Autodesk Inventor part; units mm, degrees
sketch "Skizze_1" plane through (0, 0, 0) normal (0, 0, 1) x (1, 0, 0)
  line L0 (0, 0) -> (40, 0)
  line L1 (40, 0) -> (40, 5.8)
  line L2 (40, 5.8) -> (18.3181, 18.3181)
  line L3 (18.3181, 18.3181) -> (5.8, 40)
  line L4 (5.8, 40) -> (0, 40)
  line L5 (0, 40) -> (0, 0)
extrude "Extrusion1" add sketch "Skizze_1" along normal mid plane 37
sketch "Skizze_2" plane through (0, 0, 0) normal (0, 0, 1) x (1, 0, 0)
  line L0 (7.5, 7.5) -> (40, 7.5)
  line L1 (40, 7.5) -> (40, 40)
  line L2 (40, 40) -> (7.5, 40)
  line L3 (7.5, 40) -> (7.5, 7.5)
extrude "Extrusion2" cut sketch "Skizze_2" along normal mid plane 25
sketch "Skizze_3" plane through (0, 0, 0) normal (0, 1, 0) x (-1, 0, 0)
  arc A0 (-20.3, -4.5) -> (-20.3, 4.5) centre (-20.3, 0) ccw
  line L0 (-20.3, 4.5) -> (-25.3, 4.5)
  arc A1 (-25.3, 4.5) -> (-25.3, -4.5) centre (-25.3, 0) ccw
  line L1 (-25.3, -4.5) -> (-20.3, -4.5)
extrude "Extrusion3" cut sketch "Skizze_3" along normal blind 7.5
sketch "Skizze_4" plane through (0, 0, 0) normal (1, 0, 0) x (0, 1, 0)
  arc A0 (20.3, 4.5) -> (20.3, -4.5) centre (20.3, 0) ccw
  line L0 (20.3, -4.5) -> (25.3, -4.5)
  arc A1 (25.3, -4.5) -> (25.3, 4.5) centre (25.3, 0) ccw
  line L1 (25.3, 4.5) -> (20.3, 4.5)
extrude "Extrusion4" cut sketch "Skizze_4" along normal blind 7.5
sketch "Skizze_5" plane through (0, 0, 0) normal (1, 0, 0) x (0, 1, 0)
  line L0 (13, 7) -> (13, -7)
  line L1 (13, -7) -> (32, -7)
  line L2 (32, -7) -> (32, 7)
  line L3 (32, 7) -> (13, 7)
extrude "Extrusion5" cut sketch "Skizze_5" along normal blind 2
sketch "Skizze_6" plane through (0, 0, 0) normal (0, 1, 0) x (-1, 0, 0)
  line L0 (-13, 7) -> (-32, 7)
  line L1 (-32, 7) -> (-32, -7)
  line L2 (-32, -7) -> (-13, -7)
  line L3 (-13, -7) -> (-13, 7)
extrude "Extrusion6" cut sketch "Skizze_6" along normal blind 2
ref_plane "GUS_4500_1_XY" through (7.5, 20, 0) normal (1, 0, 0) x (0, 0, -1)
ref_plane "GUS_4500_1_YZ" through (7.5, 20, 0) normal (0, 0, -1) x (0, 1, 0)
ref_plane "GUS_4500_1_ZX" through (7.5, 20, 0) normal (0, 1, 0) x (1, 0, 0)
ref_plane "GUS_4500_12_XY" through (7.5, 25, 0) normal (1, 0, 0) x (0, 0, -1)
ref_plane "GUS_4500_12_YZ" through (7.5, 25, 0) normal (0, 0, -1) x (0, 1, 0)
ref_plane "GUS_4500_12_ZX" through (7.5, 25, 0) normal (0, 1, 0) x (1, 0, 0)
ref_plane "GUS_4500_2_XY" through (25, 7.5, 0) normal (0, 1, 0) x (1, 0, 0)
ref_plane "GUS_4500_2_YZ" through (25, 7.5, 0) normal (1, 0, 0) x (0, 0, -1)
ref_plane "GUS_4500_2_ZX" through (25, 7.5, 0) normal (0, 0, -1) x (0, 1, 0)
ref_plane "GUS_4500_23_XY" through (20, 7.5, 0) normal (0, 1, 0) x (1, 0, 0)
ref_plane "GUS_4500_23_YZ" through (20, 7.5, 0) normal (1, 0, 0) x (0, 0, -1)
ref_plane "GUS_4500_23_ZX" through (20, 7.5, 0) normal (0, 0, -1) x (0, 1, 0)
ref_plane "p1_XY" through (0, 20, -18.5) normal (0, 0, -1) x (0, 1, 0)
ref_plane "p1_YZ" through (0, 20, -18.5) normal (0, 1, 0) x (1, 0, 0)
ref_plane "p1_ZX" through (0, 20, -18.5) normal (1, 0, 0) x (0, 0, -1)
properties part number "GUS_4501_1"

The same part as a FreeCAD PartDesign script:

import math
import FreeCAD as App
import Part
import Sketcher
from FreeCAD import Vector
Q = App.Units.Quantity

doc = App.newDocument("Part")
body = doc.addObject("PartDesign::Body", "Body")

sketch1 = doc.addObject("Sketcher::SketchObject", "Sketch")
body.addObject(sketch1)
sketch1.AttachmentSupport = (doc.XY_Plane, [""])
sketch1.MapMode = "FlatFace"
sketch1.addGeometry(Part.LineSegment(Vector(0, 40, 0), Vector(0, 0, 0)), False)
sketch1.addGeometry(Part.LineSegment(Vector(0, 0, 0), Vector(40, 0, 0)), False)
sketch1.addGeometry(Part.LineSegment(Vector(40, 0, 0), Vector(40, 6, 0)), False)
sketch1.addGeometry(Part.LineSegment(Vector(40, 6, 0), Vector(18, 18, 0)), False)
sketch1.addGeometry(Part.LineSegment(Vector(18, 18, 0), Vector(6, 40, 0)), False)
sketch1.addGeometry(Part.LineSegment(Vector(6, 40, 0), Vector(0, 40, 0)), False)
sketch1.addConstraint(Sketcher.Constraint("Coincident", 0, 2, 1, 1))
sketch1.addConstraint(Sketcher.Constraint("Coincident", 1, 2, 2, 1))
sketch1.addConstraint(Sketcher.Constraint("Coincident", 2, 2, 3, 1))
sketch1.addConstraint(Sketcher.Constraint("Coincident", 3, 2, 4, 1))
sketch1.addConstraint(Sketcher.Constraint("Coincident", 4, 2, 5, 1))
sketch1.addConstraint(Sketcher.Constraint("Coincident", 5, 2, 0, 1))
sketch1.addConstraint(Sketcher.Constraint("Vertical", 0))
sketch1.addConstraint(Sketcher.Constraint("Horizontal", 1))
sketch1.addConstraint(Sketcher.Constraint("Vertical", 2))
sketch1.addConstraint(Sketcher.Constraint("Horizontal", 5))
sketch1.addConstraint(Sketcher.Constraint("Coincident", 0, 2, -1, 1))
sketch1.addConstraint(Sketcher.Constraint("Equal", 1, 0))
sketch1.addConstraint(Sketcher.Constraint("Equal", 5, 2))
sketch1.addConstraint(Sketcher.Constraint("Equal", 3, 4))
sketch1.addConstraint(Sketcher.Constraint("DistanceX", 1, 1, 1, 2, 40.0))
sketch1.addConstraint(Sketcher.Constraint("Angle", 3, Q("150 deg")))
sketch1.addConstraint(Sketcher.Constraint("DistanceX", 5, 2, 5, 1, 5.8))
pad1 = doc.addObject("PartDesign::Pad", "Pad")
body.addObject(pad1)
pad1.Profile = sketch1
pad1.Length = 37
pad1.Midplane = True

sketch2 = doc.addObject("Sketcher::SketchObject", "Sketch001")
body.addObject(sketch2)
sketch2.AttachmentSupport = (doc.XY_Plane, [""])
sketch2.MapMode = "FlatFace"
sketch2.addGeometry(Part.LineSegment(Vector(8, 40, 0), Vector(8, 8, 0)), False)
sketch2.addGeometry(Part.LineSegment(Vector(8, 8, 0), Vector(40, 8, 0)), False)
sketch2.addGeometry(Part.LineSegment(Vector(40, 8, 0), Vector(40, 40, 0)), False)
sketch2.addGeometry(Part.LineSegment(Vector(40, 40, 0), Vector(8, 40, 0)), False)
sketch2.addConstraint(Sketcher.Constraint("Coincident", 0, 2, 1, 1))
sketch2.addConstraint(Sketcher.Constraint("Coincident", 1, 2, 2, 1))
sketch2.addConstraint(Sketcher.Constraint("Coincident", 2, 2, 3, 1))
sketch2.addConstraint(Sketcher.Constraint("Coincident", 3, 2, 0, 1))
sketch2.addConstraint(Sketcher.Constraint("Vertical", 0))
sketch2.addConstraint(Sketcher.Constraint("Horizontal", 1))
sketch2.addConstraint(Sketcher.Constraint("Vertical", 2))
sketch2.addConstraint(Sketcher.Constraint("Horizontal", 3))
sketch2.addConstraint(Sketcher.Constraint("Equal", 3, 0))
sketch2.addConstraint(Sketcher.Constraint("DistanceX", 1, 1, 1, 2, 32.5))
sketch2.addConstraint(Sketcher.Constraint("DistanceX", -1, 1, 1, 2, 40.0))
sketch2.addConstraint(Sketcher.Constraint("DistanceY", -1, 1, 2, 2, 40.0))
pocket1 = doc.addObject("PartDesign::Pocket", "Pocket")
body.addObject(pocket1)
pocket1.Profile = sketch2
pocket1.Length = 25
pocket1.Midplane = True

sketch3 = doc.addObject("Sketcher::SketchObject", "Sketch002")
body.addObject(sketch3)
sketch3.AttachmentSupport = (doc.XZ_Plane, [""])
sketch3.MapMode = "FlatFace"
sketch3.addGeometry(Part.LineSegment(Vector(25.3, -4.5, 0), Vector(20.3, -4.5, 0)), False)
sketch3.addGeometry(Part.ArcOfCircle(Part.Circle(Vector(20.3, 0, 0), Vector(0, 0, 1), 4.5), math.radians(90), math.radians(270)), False)
sketch3.addGeometry(Part.LineSegment(Vector(20.3, 4.5, 0), Vector(25.3, 4.5, 0)), False)
sketch3.addGeometry(Part.ArcOfCircle(Part.Circle(Vector(25.3, 0, 0), Vector(0, 0, 1), 4.5), math.radians(-90), math.radians(90)), False)
sketch3.addConstraint(Sketcher.Constraint("Tangent", 0, 2, 1, 2))
sketch3.addConstraint(Sketcher.Constraint("Tangent", 1, 1, 2, 1))
sketch3.addConstraint(Sketcher.Constraint("Tangent", 2, 2, 3, 2))
sketch3.addConstraint(Sketcher.Constraint("Tangent", 3, 1, 0, 1))
sketch3.addConstraint(Sketcher.Constraint("Horizontal", 0))
sketch3.addConstraint(Sketcher.Constraint("Horizontal", 2))
sketch3.addConstraint(Sketcher.Constraint("PointOnObject", 1, 3, -1))
sketch3.addConstraint(Sketcher.Constraint("Radius", 1, 4.5))
sketch3.addConstraint(Sketcher.Constraint("DistanceX", 0, 2, 0, 1, 5.0))
sketch3.addConstraint(Sketcher.Constraint("DistanceX", -1, 1, 1, 3, 20.3))
pocket2 = doc.addObject("PartDesign::Pocket", "Pocket001")
body.addObject(pocket2)
pocket2.Profile = sketch3
pocket2.Length = 7.5

sketch4 = doc.addObject("Sketcher::SketchObject", "Sketch003")
body.addObject(sketch4)
sketch4.AttachmentSupport = (doc.YZ_Plane, [""])
sketch4.MapMode = "FlatFace"
sketch4.addGeometry(Part.LineSegment(Vector(25.3, 4.5, 0), Vector(20.3, 4.5, 0)), False)
sketch4.addGeometry(Part.ArcOfCircle(Part.Circle(Vector(20.3, 0, 0), Vector(0, 0, 1), 4.5), math.radians(90), math.radians(270)), False)
sketch4.addGeometry(Part.LineSegment(Vector(20.3, -4.5, 0), Vector(25.3, -4.5, 0)), False)
sketch4.addGeometry(Part.ArcOfCircle(Part.Circle(Vector(25.3, 0, 0), Vector(0, 0, 1), 4.5), math.radians(-90), math.radians(90)), False)
sketch4.addConstraint(Sketcher.Constraint("Tangent", 0, 2, 1, 1))
sketch4.addConstraint(Sketcher.Constraint("Tangent", 1, 2, 2, 1))
sketch4.addConstraint(Sketcher.Constraint("Tangent", 2, 2, 3, 1))
sketch4.addConstraint(Sketcher.Constraint("Tangent", 3, 2, 0, 1))
sketch4.addConstraint(Sketcher.Constraint("Horizontal", 0))
sketch4.addConstraint(Sketcher.Constraint("Horizontal", 2))
sketch4.addConstraint(Sketcher.Constraint("PointOnObject", 1, 3, -1))
sketch4.addConstraint(Sketcher.Constraint("Radius", 1, 4.5))
sketch4.addConstraint(Sketcher.Constraint("DistanceX", 0, 2, 0, 1, 5.0))
sketch4.addConstraint(Sketcher.Constraint("DistanceX", -1, 1, 1, 3, 20.3))
pocket3 = doc.addObject("PartDesign::Pocket", "Pocket002")
body.addObject(pocket3)
pocket3.Profile = sketch4
pocket3.Length = 7.5
pocket3.Reversed = True

sketch5 = doc.addObject("Sketcher::SketchObject", "Sketch004")
body.addObject(sketch5)
sketch5.AttachmentSupport = (doc.YZ_Plane, [""])
sketch5.MapMode = "FlatFace"
sketch5.addGeometry(Part.LineSegment(Vector(32, 7, 0), Vector(13, 7, 0)), False)
sketch5.addGeometry(Part.LineSegment(Vector(13, 7, 0), Vector(13, -7, 0)), False)
sketch5.addGeometry(Part.LineSegment(Vector(13, -7, 0), Vector(32, -7, 0)), False)
sketch5.addGeometry(Part.LineSegment(Vector(32, -7, 0), Vector(32, 7, 0)), False)
sketch5.addConstraint(Sketcher.Constraint("Coincident", 0, 2, 1, 1))
sketch5.addConstraint(Sketcher.Constraint("Coincident", 1, 2, 2, 1))
sketch5.addConstraint(Sketcher.Constraint("Coincident", 2, 2, 3, 1))
sketch5.addConstraint(Sketcher.Constraint("Coincident", 3, 2, 0, 1))
sketch5.addConstraint(Sketcher.Constraint("Horizontal", 0))
sketch5.addConstraint(Sketcher.Constraint("Vertical", 1))
sketch5.addConstraint(Sketcher.Constraint("Horizontal", 2))
sketch5.addConstraint(Sketcher.Constraint("Vertical", 3))
sketch5.addConstraint(Sketcher.Constraint("DistanceX", 0, 2, 0, 1, 19.0))
sketch5.addConstraint(Sketcher.Constraint("DistanceY", 1, 2, 1, 1, 14.0))
sketch5.addConstraint(Sketcher.Constraint("DistanceX", -1, 1, 0, 2, 13.0))
sketch5.addConstraint(Sketcher.Constraint("DistanceY", -1, 1, 0, 2, 7.0))
pocket4 = doc.addObject("PartDesign::Pocket", "Pocket003")
body.addObject(pocket4)
pocket4.Profile = sketch5
pocket4.Length = 2
pocket4.Reversed = True

sketch6 = doc.addObject("Sketcher::SketchObject", "Sketch005")
body.addObject(sketch6)
sketch6.AttachmentSupport = (doc.XZ_Plane, [""])
sketch6.MapMode = "FlatFace"
sketch6.addGeometry(Part.LineSegment(Vector(13, -7, 0), Vector(13, 7, 0)), False)
sketch6.addGeometry(Part.LineSegment(Vector(13, 7, 0), Vector(32, 7, 0)), False)
sketch6.addGeometry(Part.LineSegment(Vector(32, 7, 0), Vector(32, -7, 0)), False)
sketch6.addGeometry(Part.LineSegment(Vector(32, -7, 0), Vector(13, -7, 0)), False)
sketch6.addConstraint(Sketcher.Constraint("Coincident", 0, 2, 1, 1))
sketch6.addConstraint(Sketcher.Constraint("Coincident", 1, 2, 2, 1))
sketch6.addConstraint(Sketcher.Constraint("Coincident", 2, 2, 3, 1))
sketch6.addConstraint(Sketcher.Constraint("Coincident", 3, 2, 0, 1))
sketch6.addConstraint(Sketcher.Constraint("Vertical", 0))
sketch6.addConstraint(Sketcher.Constraint("Horizontal", 1))
sketch6.addConstraint(Sketcher.Constraint("Vertical", 2))
sketch6.addConstraint(Sketcher.Constraint("Horizontal", 3))
sketch6.addConstraint(Sketcher.Constraint("DistanceX", 1, 1, 1, 2, 19.0))
sketch6.addConstraint(Sketcher.Constraint("DistanceY", 0, 1, 0, 2, 14.0))
sketch6.addConstraint(Sketcher.Constraint("DistanceX", -1, 1, 0, 2, 13.0))
sketch6.addConstraint(Sketcher.Constraint("DistanceY", -1, 1, 0, 2, 7.0))
pocket5 = doc.addObject("PartDesign::Pocket", "Pocket004")
body.addObject(pocket5)
pocket5.Profile = sketch6
pocket5.Length = 2

doc.recompute()
